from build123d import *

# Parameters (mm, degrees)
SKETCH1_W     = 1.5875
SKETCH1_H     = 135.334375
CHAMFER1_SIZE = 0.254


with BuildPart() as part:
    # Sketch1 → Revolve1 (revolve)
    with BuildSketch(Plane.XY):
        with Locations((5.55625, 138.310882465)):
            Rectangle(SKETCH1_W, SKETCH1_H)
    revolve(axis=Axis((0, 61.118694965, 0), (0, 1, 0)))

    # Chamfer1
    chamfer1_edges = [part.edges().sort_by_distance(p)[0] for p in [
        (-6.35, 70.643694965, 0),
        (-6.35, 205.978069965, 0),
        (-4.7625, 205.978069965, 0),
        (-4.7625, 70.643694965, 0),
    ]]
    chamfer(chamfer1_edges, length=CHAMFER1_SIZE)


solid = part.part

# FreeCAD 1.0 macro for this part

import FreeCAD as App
import Part
import Sketcher
from FreeCAD import Vector
Q = App.Units.Quantity


def edges_at(feature, points):
    """Names of the edges that pass closest to the given points."""
    edges = feature.Shape.Edges
    near = lambda p: min(range(len(edges)), key=lambda i: edges[i].distToShape(Part.Vertex(*p))[0])
    return sorted({f"Edge{near(p) + 1}" for p in points})


def add_polygon(sketch, points):
    """Adds a closed chain of lines whose ends are joined by coincident constraints."""
    first, n = sketch.GeometryCount, len(points)
    for a, b in zip(points, points[1:] + points[:1]):
        sketch.addGeometry(Part.LineSegment(App.Vector(*a, 0), App.Vector(*b, 0)), False)
    for i in range(n):
        sketch.addConstraint(Sketcher.Constraint("Coincident", first + i, 2, first + (i + 1) % n, 1))

doc = App.newDocument("Part")
params = doc.addObject("Spreadsheet::Sheet", "Params")
for row, (alias, value) in enumerate([
    ("sketch1_width", "0.0625 in"),
    ("sketch1_height", "5.328125 in"),
    ("revolution_angle", "360 deg"),
    ("chamfer_size", "0.01 in"),
], start=1):
    params.set(f"A{row}", alias)
    params.set(f"B{row}", "=" + value)
    params.setAlias(f"B{row}", alias)

body = doc.addObject("PartDesign::Body", "Body")

# Sketch on XY plane
sketch1 = doc.addObject("Sketcher::SketchObject", "Sketch")
body.addObject(sketch1)
sketch1.AttachmentSupport = (doc.XY_Plane, [""])
sketch1.MapMode = "FlatFace"
add_polygon(sketch1, [(4.7625, 205.97807), (4.7625, 70.643695), (6.35, 70.643695), (6.35, 205.97807)])  # lines 0-3
sketch1.addConstraint([
    Sketcher.Constraint("Vertical", 0),
    Sketcher.Constraint("Horizontal", 1),
    Sketcher.Constraint("Vertical", 2),
    Sketcher.Constraint("Horizontal", 3),
    Sketcher.Constraint("DistanceX", 1, 1, 1, 2, Q("0.0625 in")),
    Sketcher.Constraint("DistanceY", 0, 2, 0, 1, Q("5.328125 in")),
    Sketcher.Constraint("DistanceX", -1, 1, 1, 2, Q("0.25 in")),
    Sketcher.Constraint("DistanceY", -1, 1, 2, 2, Q("205.97807 mm")),
])
sketch1.setExpression("Constraints[8]", "Params.sketch1_width")
sketch1.setExpression("Constraints[9]", "Params.sketch1_height")
revolution = doc.addObject("PartDesign::Revolution", "Revolution")
body.addObject(revolution)
revolution.Profile = sketch1
revolution.ReferenceAxis = (sketch1, ["V_Axis"])
revolution.setExpression("Angle", "Params.revolution_angle")
doc.recompute()

chamfer = doc.addObject("PartDesign::Chamfer", "Chamfer")
body.addObject(chamfer)
chamfer.Base = (revolution, edges_at(revolution, [
    (-6.35, 70.644, 0),
    (-6.35, 205.978, 0),
    (-4.763, 205.978, 0),
    (-4.763, 70.644, 0),
]))
chamfer.setExpression("Size", "Params.chamfer_size")

doc.recompute()
